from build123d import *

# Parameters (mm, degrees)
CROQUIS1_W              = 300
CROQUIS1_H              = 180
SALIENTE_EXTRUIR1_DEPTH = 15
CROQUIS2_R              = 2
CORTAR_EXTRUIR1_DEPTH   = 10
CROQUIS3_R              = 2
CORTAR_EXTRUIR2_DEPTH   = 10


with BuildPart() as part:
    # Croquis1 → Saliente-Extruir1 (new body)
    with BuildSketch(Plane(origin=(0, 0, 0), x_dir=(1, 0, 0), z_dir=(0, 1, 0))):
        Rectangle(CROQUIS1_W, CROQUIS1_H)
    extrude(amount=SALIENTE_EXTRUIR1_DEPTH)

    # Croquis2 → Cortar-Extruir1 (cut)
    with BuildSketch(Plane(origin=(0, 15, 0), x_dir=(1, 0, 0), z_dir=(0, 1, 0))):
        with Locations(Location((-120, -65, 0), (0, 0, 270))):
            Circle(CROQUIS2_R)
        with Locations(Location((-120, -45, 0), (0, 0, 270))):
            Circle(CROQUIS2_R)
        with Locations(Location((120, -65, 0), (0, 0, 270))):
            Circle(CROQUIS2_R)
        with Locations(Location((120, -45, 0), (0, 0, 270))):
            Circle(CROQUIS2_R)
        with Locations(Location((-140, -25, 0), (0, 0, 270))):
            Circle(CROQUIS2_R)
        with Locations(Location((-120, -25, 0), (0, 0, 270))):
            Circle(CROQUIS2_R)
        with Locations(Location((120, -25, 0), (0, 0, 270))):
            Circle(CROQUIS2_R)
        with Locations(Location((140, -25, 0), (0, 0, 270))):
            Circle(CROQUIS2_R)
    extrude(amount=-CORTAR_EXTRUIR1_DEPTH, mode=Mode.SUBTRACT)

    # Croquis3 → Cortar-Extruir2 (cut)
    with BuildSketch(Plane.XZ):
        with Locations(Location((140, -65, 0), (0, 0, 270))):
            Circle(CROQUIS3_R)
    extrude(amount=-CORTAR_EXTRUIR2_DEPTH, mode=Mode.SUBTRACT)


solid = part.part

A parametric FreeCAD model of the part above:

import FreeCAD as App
import Part
import Sketcher
from FreeCAD import Vector
Q = App.Units.Quantity

doc = App.newDocument("Part")
params = doc.addObject("Spreadsheet::Sheet", "Params")
for row, (alias, value) in enumerate([
    ("sketch1_width", "300 mm"),
    ("sketch1_height", "180 mm"),
    ("pad1_length", "15 mm"),
    ("sketch2_diameter", "4 mm"),
    ("pocket1_length", "10 mm"),
    ("sketch3_diameter", "4 mm"),
    ("pocket2_length", "10 mm"),
], start=1):
    params.set(f"A{row}", alias)
    params.set(f"B{row}", "=" + value)
    params.setAlias(f"B{row}", alias)

body = doc.addObject("PartDesign::Body", "Body")

# Sketch on XZ plane
sketch1 = body.newObject("Sketcher::SketchObject", "Sketch")
sketch1.AttachmentSupport = (doc.getObject("XZ_Plane"), [""])
sketch1.MapMode = "FlatFace"
sketch1.addGeometry([
    Part.LineSegment(Vector(-150, -90, 0), Vector(-150, 90, 0)),
    Part.LineSegment(Vector(-150, 90, 0), Vector(150, 90, 0)),
    Part.LineSegment(Vector(150, 90, 0), Vector(150, -90, 0)),
    Part.LineSegment(Vector(150, -90, 0), Vector(-150, -90, 0)),
], False)
sketch1.addConstraint([
    Sketcher.Constraint("Coincident", 0, 2, 1, 1),
    Sketcher.Constraint("Coincident", 1, 2, 2, 1),
    Sketcher.Constraint("Coincident", 2, 2, 3, 1),
    Sketcher.Constraint("Coincident", 3, 2, 0, 1),
    Sketcher.Constraint("Vertical", 0),
    Sketcher.Constraint("Horizontal", 1),
    Sketcher.Constraint("Vertical", 2),
    Sketcher.Constraint("Horizontal", 3),
    Sketcher.Constraint("Symmetric", 0, 2, 2, 2, -1, 1),
    Sketcher.Constraint("DistanceX", 1, 1, 1, 2, Q("300 mm")),
    Sketcher.Constraint("DistanceY", 0, 1, 0, 2, Q("180 mm")),
])
sketch1.setExpression("Constraints[9]", "Params.sketch1_width")
sketch1.setExpression("Constraints[10]", "Params.sketch1_height")
pad1 = body.newObject("PartDesign::Pad", "Pad")
pad1.Profile = sketch1
pad1.setExpression("Length", "Params.pad1_length")
pad1.Reversed = True

# Sketch on XZ plane
sketch2 = body.newObject("Sketcher::SketchObject", "Sketch001")
sketch2.AttachmentSupport = (doc.getObject("XZ_Plane"), [""])
sketch2.MapMode = "FlatFace"
sketch2.AttachmentOffset = App.Placement(Vector(0, 0, -15), App.Rotation())
sketch2.addGeometry([
    Part.Circle(Vector(-120, 65, 0), Vector(0, 0, 1), 2),  # 0
    Part.Circle(Vector(-120, 45, 0), Vector(0, 0, 1), 2),  # 1
    Part.Circle(Vector(120, 65, 0), Vector(0, 0, 1), 2),  # 2
    Part.Circle(Vector(120, 45, 0), Vector(0, 0, 1), 2),  # 3
    Part.Circle(Vector(-140, 25, 0), Vector(0, 0, 1), 2),  # 4
    Part.Circle(Vector(-120, 25, 0), Vector(0, 0, 1), 2),  # 5
    Part.Circle(Vector(120, 25, 0), Vector(0, 0, 1), 2),  # 6
    Part.Circle(Vector(140, 25, 0), Vector(0, 0, 1), 2),  # 7
], False)
sketch2.addConstraint([
    Sketcher.Constraint("Equal", 0, 1),
    Sketcher.Constraint("Equal", 1, 2),
    Sketcher.Constraint("Equal", 2, 3),
    Sketcher.Constraint("Equal", 3, 4),
    Sketcher.Constraint("Equal", 4, 5),
    Sketcher.Constraint("Equal", 5, 6),
    Sketcher.Constraint("Equal", 6, 7),
    Sketcher.Constraint("Symmetric", 0, 3, 2, 3, -2),
    Sketcher.Constraint("Symmetric", 1, 3, 3, 3, -2),
    Sketcher.Constraint("Symmetric", 5, 3, 6, 3, -2),
    Sketcher.Constraint("Symmetric", 4, 3, 7, 3, -2),
    Sketcher.Constraint("Horizontal", 4, 3, 5, 3),
    Sketcher.Constraint("Vertical", 0, 3, 1, 3),
    Sketcher.Constraint("Vertical", 1, 3, 5, 3),
    Sketcher.Constraint("Diameter", 0, Q("4 mm")),
    Sketcher.Constraint("DistanceX", 0, 3, -1, 1, Q("120 mm")),
    Sketcher.Constraint("DistanceY", -1, 1, 0, 3, Q("65 mm")),
    Sketcher.Constraint("DistanceY", -1, 1, 1, 3, Q("45 mm")),
    Sketcher.Constraint("DistanceX", 4, 3, -1, 1, Q("140 mm")),
    Sketcher.Constraint("DistanceY", -1, 1, 4, 3, Q("25 mm")),
])
sketch2.setExpression("Constraints[14]", "Params.sketch2_diameter")
pocket1 = body.newObject("PartDesign::Pocket", "Pocket")
pocket1.Profile = sketch2
pocket1.setExpression("Length", "Params.pocket1_length")
pocket1.Reversed = True

# Sketch on XZ plane
sketch3 = body.newObject("Sketcher::SketchObject", "Sketch002")
sketch3.AttachmentSupport = (doc.getObject("XZ_Plane"), [""])
sketch3.MapMode = "FlatFace"
sketch3.addGeometry(Part.Circle(Vector(140, -65, 0), Vector(0, 0, 1), 2), False)
sketch3.addConstraint([
    Sketcher.Constraint("Diameter", 0, Q("4 mm")),
    Sketcher.Constraint("DistanceX", -1, 1, 0, 3, Q("140 mm")),
    Sketcher.Constraint("DistanceY", 0, 3, -1, 1, Q("65 mm")),
])
sketch3.setExpression("Constraints[0]", "Params.sketch3_diameter")
pocket2 = body.newObject("PartDesign::Pocket", "Pocket001")
pocket2.Profile = sketch3
pocket2.setExpression("Length", "Params.pocket2_length")

doc.recompute()
